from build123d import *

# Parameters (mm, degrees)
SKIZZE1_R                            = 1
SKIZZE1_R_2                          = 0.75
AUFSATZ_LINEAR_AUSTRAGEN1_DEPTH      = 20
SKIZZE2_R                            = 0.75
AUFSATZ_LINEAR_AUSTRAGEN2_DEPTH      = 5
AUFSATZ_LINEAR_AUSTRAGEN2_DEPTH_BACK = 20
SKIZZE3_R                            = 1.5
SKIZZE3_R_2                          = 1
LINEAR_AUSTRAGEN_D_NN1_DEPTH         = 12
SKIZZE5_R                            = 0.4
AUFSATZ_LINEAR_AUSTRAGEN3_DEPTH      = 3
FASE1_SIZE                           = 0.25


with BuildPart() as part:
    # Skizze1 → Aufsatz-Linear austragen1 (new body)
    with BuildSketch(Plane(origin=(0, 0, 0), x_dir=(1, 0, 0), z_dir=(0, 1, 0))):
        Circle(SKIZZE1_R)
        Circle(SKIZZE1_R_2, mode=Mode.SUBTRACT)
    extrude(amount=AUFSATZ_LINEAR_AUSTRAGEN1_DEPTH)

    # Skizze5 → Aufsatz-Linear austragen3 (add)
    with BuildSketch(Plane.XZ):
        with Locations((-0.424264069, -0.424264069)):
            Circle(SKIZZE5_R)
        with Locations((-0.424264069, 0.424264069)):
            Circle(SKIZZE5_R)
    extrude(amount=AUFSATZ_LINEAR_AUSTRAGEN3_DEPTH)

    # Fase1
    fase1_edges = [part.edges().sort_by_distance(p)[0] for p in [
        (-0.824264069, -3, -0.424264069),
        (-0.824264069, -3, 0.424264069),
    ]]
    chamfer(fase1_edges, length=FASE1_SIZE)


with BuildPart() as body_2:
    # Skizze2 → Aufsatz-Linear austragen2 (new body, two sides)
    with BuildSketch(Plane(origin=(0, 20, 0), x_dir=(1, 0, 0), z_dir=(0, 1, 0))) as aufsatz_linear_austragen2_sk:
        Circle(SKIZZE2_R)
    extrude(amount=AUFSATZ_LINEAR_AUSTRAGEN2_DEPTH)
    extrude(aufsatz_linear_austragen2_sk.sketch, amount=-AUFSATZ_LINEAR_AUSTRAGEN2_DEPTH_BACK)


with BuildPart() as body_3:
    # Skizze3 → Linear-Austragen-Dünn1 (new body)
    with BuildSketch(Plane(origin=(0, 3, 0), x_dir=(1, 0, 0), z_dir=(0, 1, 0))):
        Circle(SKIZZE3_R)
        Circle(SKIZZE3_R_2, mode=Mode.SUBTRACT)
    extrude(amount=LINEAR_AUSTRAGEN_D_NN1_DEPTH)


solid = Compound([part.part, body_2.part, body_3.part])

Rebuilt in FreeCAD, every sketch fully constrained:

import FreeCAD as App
import Part
import Sketcher
from FreeCAD import Vector


def edges_at(feature, points):
    """Names of the edges that pass closest to the given points."""
    edges = feature.Shape.Edges
    near = lambda p: min(range(len(edges)), key=lambda i: edges[i].distToShape(Part.Vertex(*p))[0])
    return sorted({f"Edge{near(p) + 1}" for p in points})

doc = App.newDocument("Part")
params = doc.addObject("Spreadsheet::Sheet", "Params")
for row, (alias, value) in enumerate([
    ("sketch1_diameter", "2 mm"),
    ("sketch1_diameter2", "1.5 mm"),
    ("pad1_length", "20 mm"),
    ("sketch2_diameter", "0.8 mm"),
    ("pad2_length", "3 mm"),
    ("chamfer_size", "0.25 mm"),
    ("sketch3_diameter", "1.5 mm"),
    ("pad3_length", "5 mm"),
    ("pad3_length2", "20 mm"),
    ("sketch4_diameter", "3 mm"),
    ("sketch4_diameter2", "2 mm"),
    ("pad4_length", "12 mm"),
], start=1):
    params.set(f"A{row}", alias)
    params.set(f"B{row}", "=" + value)
    params.setAlias(f"B{row}", alias)

body = doc.addObject("PartDesign::Body", "Body")

# Sketch on XZ plane
sketch1 = body.newObject("Sketcher::SketchObject", "Sketch")
sketch1.AttachmentSupport = (doc.getObject("XZ_Plane"), [""])
sketch1.MapMode = "FlatFace"
sketch1.addGeometry([
    Part.Circle(Vector(0, 0, 0), Vector(0, 0, 1), 1),
    Part.Circle(Vector(0, 0, 0), Vector(0, 0, 1), 0.8),
], False)
sketch1.addConstraint([
    Sketcher.Constraint("Coincident", 0, 3, -1, 1),
    Sketcher.Constraint("Coincident", 1, 3, -1, 1),
    Sketcher.Constraint("Diameter", 0, 2.0),
    Sketcher.Constraint("Diameter", 1, 1.5),
])
sketch1.setExpression("Constraints[2]", "Params.sketch1_diameter")
sketch1.setExpression("Constraints[3]", "Params.sketch1_diameter2")
pad1 = body.newObject("PartDesign::Pad", "Pad")
pad1.Profile = sketch1
pad1.setExpression("Length", "Params.pad1_length")
pad1.Reversed = True

# Sketch on XZ plane
sketch2 = body.newObject("Sketcher::SketchObject", "Sketch001")
sketch2.AttachmentSupport = (doc.getObject("XZ_Plane"), [""])
sketch2.MapMode = "FlatFace"
sketch2.addGeometry([
    Part.Circle(Vector(-0.42, -0.42, 0), Vector(0, 0, 1), 0.4),
    Part.Circle(Vector(-0.42, 0.42, 0), Vector(0, 0, 1), 0.4),
], False)
sketch2.addConstraint([
    Sketcher.Constraint("Equal", 0, 1),
    Sketcher.Constraint("Symmetric", 0, 3, 1, 3, -1),
    Sketcher.Constraint("Diameter", 0, 0.8),
    Sketcher.Constraint("DistanceY", 0, 3, 1, 3, 0.848528),
    Sketcher.Constraint("DistanceX", 0, 3, -1, 1, 0.424264),
])
sketch2.setExpression("Constraints[2]", "Params.sketch2_diameter")
pad2 = body.newObject("PartDesign::Pad", "Pad001")
pad2.Profile = sketch2
pad2.setExpression("Length", "Params.pad2_length")
doc.recompute()

chamfer = body.newObject("PartDesign::Chamfer", "Chamfer")
chamfer.Base = (pad2, edges_at(pad2, [(-0.824, -3, -0.424), (-0.824, -3, 0.424)]))
chamfer.setExpression("Size", "Params.chamfer_size")
body2 = doc.addObject("PartDesign::Body", "Body001")

# Sketch on XZ plane
sketch3 = body2.newObject("Sketcher::SketchObject", "Sketch002")
sketch3.AttachmentSupport = (doc.getObject("XZ_Plane001"), [""])
sketch3.MapMode = "FlatFace"
sketch3.AttachmentOffset = App.Placement(Vector(0, 0, -20), App.Rotation())
sketch3.addGeometry(Part.Circle(Vector(0, 0, 0), Vector(0, 0, 1), 0.8), False)
sketch3.addConstraint([
    Sketcher.Constraint("Coincident", 0, 3, -1, 1),
    Sketcher.Constraint("Diameter", 0, 1.5),
])
sketch3.setExpression("Constraints[1]", "Params.sketch3_diameter")
pad3 = body2.newObject("PartDesign::Pad", "Pad002")
pad3.Profile = sketch3
pad3.Type = "TwoLengths"
pad3.setExpression("Length", "Params.pad3_length")
pad3.setExpression("Length2", "Params.pad3_length2")
pad3.Reversed = True
body3 = doc.addObject("PartDesign::Body", "Body002")

# Sketch on XZ plane
sketch4 = body3.newObject("Sketcher::SketchObject", "Sketch003")
sketch4.AttachmentSupport = (doc.getObject("XZ_Plane002"), [""])
sketch4.MapMode = "FlatFace"
sketch4.AttachmentOffset = App.Placement(Vector(0, 0, -3), App.Rotation())
sketch4.addGeometry([
    Part.Circle(Vector(0, 0, 0), Vector(0, 0, 1), 1.5),
    Part.Circle(Vector(0, 0, 0), Vector(0, 0, 1), 1),
], False)
sketch4.addConstraint([
    Sketcher.Constraint("Coincident", 0, 3, -1, 1),
    Sketcher.Constraint("Coincident", 1, 3, -1, 1),
    Sketcher.Constraint("Diameter", 0, 3.0),
    Sketcher.Constraint("Diameter", 1, 2.0),
])
sketch4.setExpression("Constraints[2]", "Params.sketch4_diameter")
sketch4.setExpression("Constraints[3]", "Params.sketch4_diameter2")
pad4 = body3.newObject("PartDesign::Pad", "Pad003")
pad4.Profile = sketch4
pad4.setExpression("Length", "Params.pad4_length")
pad4.Reversed = True

doc.recompute()
